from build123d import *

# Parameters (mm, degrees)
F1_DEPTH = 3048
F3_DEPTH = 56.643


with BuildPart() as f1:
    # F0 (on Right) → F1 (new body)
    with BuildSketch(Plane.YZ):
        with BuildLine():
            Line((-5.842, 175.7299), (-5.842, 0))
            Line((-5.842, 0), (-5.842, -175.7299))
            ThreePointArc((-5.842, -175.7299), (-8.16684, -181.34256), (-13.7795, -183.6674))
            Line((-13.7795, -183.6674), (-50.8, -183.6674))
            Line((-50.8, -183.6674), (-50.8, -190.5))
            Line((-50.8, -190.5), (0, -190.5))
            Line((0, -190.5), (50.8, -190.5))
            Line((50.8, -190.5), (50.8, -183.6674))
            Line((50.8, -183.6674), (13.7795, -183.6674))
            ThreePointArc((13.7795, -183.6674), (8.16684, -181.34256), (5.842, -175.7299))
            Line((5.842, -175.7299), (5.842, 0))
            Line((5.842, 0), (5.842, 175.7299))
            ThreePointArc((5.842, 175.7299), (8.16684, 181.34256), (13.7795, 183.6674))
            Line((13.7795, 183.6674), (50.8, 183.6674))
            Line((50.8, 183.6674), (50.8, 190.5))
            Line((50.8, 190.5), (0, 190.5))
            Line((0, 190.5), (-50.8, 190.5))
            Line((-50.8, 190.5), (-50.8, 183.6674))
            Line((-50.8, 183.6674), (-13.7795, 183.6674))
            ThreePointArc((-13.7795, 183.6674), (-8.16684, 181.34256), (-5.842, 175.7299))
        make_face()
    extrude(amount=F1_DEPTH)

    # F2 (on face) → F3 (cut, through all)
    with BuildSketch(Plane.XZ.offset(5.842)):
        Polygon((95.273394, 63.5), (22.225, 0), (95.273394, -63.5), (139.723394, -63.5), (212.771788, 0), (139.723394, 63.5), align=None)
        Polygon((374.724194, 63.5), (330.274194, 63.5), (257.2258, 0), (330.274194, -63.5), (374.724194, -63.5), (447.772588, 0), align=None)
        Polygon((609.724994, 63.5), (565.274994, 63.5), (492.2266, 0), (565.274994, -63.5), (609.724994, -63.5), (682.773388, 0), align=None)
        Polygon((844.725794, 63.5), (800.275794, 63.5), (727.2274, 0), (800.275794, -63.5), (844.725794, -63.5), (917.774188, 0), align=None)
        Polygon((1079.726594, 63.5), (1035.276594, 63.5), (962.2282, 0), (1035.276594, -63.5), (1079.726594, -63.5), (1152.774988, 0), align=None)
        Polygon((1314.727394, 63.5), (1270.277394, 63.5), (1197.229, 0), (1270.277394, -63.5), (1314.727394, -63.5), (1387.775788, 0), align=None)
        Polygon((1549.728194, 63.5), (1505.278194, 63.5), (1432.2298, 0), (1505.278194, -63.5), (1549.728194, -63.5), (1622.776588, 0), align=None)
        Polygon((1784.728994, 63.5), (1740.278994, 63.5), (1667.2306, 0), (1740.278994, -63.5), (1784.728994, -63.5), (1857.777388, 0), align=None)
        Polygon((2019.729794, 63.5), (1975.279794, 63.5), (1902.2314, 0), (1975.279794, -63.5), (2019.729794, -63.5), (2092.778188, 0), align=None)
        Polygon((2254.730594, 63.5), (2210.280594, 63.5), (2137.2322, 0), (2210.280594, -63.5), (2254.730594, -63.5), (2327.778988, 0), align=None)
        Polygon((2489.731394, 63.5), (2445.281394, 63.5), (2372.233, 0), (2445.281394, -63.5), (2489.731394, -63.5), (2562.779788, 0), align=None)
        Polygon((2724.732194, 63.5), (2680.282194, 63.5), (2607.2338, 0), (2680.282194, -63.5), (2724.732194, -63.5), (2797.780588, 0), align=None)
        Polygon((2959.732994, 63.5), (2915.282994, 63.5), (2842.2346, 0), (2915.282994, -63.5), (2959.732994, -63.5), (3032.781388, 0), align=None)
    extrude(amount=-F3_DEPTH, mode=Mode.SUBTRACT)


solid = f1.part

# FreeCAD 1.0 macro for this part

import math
import FreeCAD as App
import Part
import Sketcher
Q = App.Units.Quantity

doc = App.newDocument("Part")
body = doc.addObject("PartDesign::Body", "Body")

sketch1 = body.newObject("Sketcher::SketchObject", "Sketch")
sketch1.AttachmentSupport = (doc.getObject("YZ_Plane"), [""])
sketch1.MapMode = "FlatFace"
sketch1.addGeometry([
    Part.LineSegment(App.Vector(-5.842, 175.7299, 0), App.Vector(-5.842, -175.7299, 0)),
    Part.ArcOfCircle(Part.Circle(App.Vector(-13.7795, -175.7299, 0), App.Vector(0, 0, 1), 7.9375), math.radians(-89.999998), math.radians(-0.000002)),
    Part.LineSegment(App.Vector(-13.7795, -183.6674, 0), App.Vector(-50.8, -183.6674, 0)),
    Part.LineSegment(App.Vector(-50.8, -183.6674, 0), App.Vector(-50.8, -190.5, 0)),
    Part.LineSegment(App.Vector(-50.8, -190.5, 0), App.Vector(50.8, -190.5, 0)),
    Part.LineSegment(App.Vector(50.8, -190.5, 0), App.Vector(50.8, -183.6674, 0)),
    Part.LineSegment(App.Vector(50.8, -183.6674, 0), App.Vector(13.7795, -183.6674, 0)),
    Part.ArcOfCircle(Part.Circle(App.Vector(13.7795, -175.7299, 0), App.Vector(0, 0, 1), 7.9375), math.radians(-179.999998), math.radians(-90.000002)),
    Part.LineSegment(App.Vector(5.842, -175.7299, 0), App.Vector(5.842, 175.7299, 0)),
    Part.ArcOfCircle(Part.Circle(App.Vector(13.7795, 175.7299, 0), App.Vector(0, 0, 1), 7.9375), math.radians(90.000002), math.radians(179.999998)),
    Part.LineSegment(App.Vector(13.7795, 183.6674, 0), App.Vector(50.8, 183.6674, 0)),
    Part.LineSegment(App.Vector(50.8, 183.6674, 0), App.Vector(50.8, 190.5, 0)),
    Part.LineSegment(App.Vector(50.8, 190.5, 0), App.Vector(-50.8, 190.5, 0)),
    Part.LineSegment(App.Vector(-50.8, 190.5, 0), App.Vector(-50.8, 183.6674, 0)),
    Part.LineSegment(App.Vector(-50.8, 183.6674, 0), App.Vector(-13.7795, 183.6674, 0)),
    Part.ArcOfCircle(Part.Circle(App.Vector(-13.7795, 175.7299, 0), App.Vector(0, 0, 1), 7.9375), math.radians(0.000002), math.radians(89.999998)),
], False)
sketch1.addConstraint([
    Sketcher.Constraint("Tangent", 0, 2, 1, 2),
    Sketcher.Constraint("Tangent", 1, 1, 2, 1),
    Sketcher.Constraint("Coincident", 2, 2, 3, 1),
    Sketcher.Constraint("Coincident", 3, 2, 4, 1),
    Sketcher.Constraint("Coincident", 4, 2, 5, 1),
    Sketcher.Constraint("Coincident", 5, 2, 6, 1),
    Sketcher.Constraint("Tangent", 6, 2, 7, 2),
    Sketcher.Constraint("Tangent", 7, 1, 8, 1),
    Sketcher.Constraint("Tangent", 8, 2, 9, 2),
    Sketcher.Constraint("Tangent", 9, 1, 10, 1),
    Sketcher.Constraint("Coincident", 10, 2, 11, 1),
    Sketcher.Constraint("Coincident", 11, 2, 12, 1),
    Sketcher.Constraint("Coincident", 12, 2, 13, 1),
    Sketcher.Constraint("Coincident", 13, 2, 14, 1),
    Sketcher.Constraint("Tangent", 14, 2, 15, 2),
    Sketcher.Constraint("Tangent", 15, 1, 0, 1),
    Sketcher.Constraint("Vertical", 0),
    Sketcher.Constraint("Horizontal", 2),
    Sketcher.Constraint("Vertical", 3),
    Sketcher.Constraint("Horizontal", 4),
    Sketcher.Constraint("Vertical", 5),
    Sketcher.Constraint("Horizontal", 6),
    Sketcher.Constraint("Vertical", 8),
    Sketcher.Constraint("Horizontal", 10),
    Sketcher.Constraint("Vertical", 11),
    Sketcher.Constraint("Horizontal", 12),
    Sketcher.Constraint("Vertical", 13),
    Sketcher.Constraint("Horizontal", 14),
    Sketcher.Constraint("Equal", 1, 7),
    Sketcher.Constraint("Equal", 7, 9),
    Sketcher.Constraint("Equal", 9, 15),
    Sketcher.Constraint("Symmetric", 1, 3, 9, 3, -1, 1),
    Sketcher.Constraint("Symmetric", 3, 2, 11, 2, -1, 1),
    Sketcher.Constraint("Symmetric", 5, 2, 13, 2, -1, 1),
    Sketcher.Constraint("Symmetric", 2, 2, 5, 2, -2),
    Sketcher.Constraint("DistanceX", 4, 1, 4, 2, Q("4 in")),
    Sketcher.Constraint("Radius", 1, Q("0.3125 in")),
    Sketcher.Constraint("DistanceY", 3, 2, -1, 1, Q("7.5 in")),
    Sketcher.Constraint("DistanceY", 0, 2, 0, 1, Q("13.837 in")),
    Sketcher.Constraint("DistanceX", 0, 2, -1, 1, Q("0.23 in")),
])
pad1 = body.newObject("PartDesign::Pad", "Pad")
pad1.Profile = sketch1
pad1.Length = Q("120 in")

sketch2 = body.newObject("Sketcher::SketchObject", "Sketch001")
sketch2.AttachmentSupport = (doc.getObject("XZ_Plane"), [""])
sketch2.MapMode = "FlatFace"
sketch2.AttachmentOffset = App.Placement(App.Vector(0, 0, 0.23 * 25.4), App.Rotation())
sketch2.addGeometry([
    Part.LineSegment(App.Vector(95.273394, 63.5, 0), App.Vector(22.225, 0, 0)),
    Part.LineSegment(App.Vector(22.225, 0, 0), App.Vector(95.273394, -63.5, 0)),
    Part.LineSegment(App.Vector(95.273394, -63.5, 0), App.Vector(139.723394, -63.5, 0)),
    Part.LineSegment(App.Vector(139.723394, -63.5, 0), App.Vector(212.771788, 0, 0)),
    Part.LineSegment(App.Vector(212.771788, 0, 0), App.Vector(139.723394, 63.5, 0)),
    Part.LineSegment(App.Vector(139.723394, 63.5, 0), App.Vector(95.273394, 63.5, 0)),
    Part.LineSegment(App.Vector(374.724194, 63.5, 0), App.Vector(330.274194, 63.5, 0)),
    Part.LineSegment(App.Vector(330.274194, 63.5, 0), App.Vector(257.2258, 0, 0)),
    Part.LineSegment(App.Vector(257.2258, 0, 0), App.Vector(330.274194, -63.5, 0)),
    Part.LineSegment(App.Vector(330.274194, -63.5, 0), App.Vector(374.724194, -63.5, 0)),
    Part.LineSegment(App.Vector(374.724194, -63.5, 0), App.Vector(447.772588, 0, 0)),
    Part.LineSegment(App.Vector(447.772588, 0, 0), App.Vector(374.724194, 63.5, 0)),
    Part.LineSegment(App.Vector(609.724994, 63.5, 0), App.Vector(565.274994, 63.5, 0)),
    Part.LineSegment(App.Vector(565.274994, 63.5, 0), App.Vector(492.2266, 0, 0)),
    Part.LineSegment(App.Vector(492.2266, 0, 0), App.Vector(565.274994, -63.5, 0)),
    Part.LineSegment(App.Vector(565.274994, -63.5, 0), App.Vector(609.724994, -63.5, 0)),
    Part.LineSegment(App.Vector(609.724994, -63.5, 0), App.Vector(682.773388, 0, 0)),
    Part.LineSegment(App.Vector(682.773388, 0, 0), App.Vector(609.724994, 63.5, 0)),
    Part.LineSegment(App.Vector(844.725794, 63.5, 0), App.Vector(800.275794, 63.5, 0)),
    Part.LineSegment(App.Vector(800.275794, 63.5, 0), App.Vector(727.2274, 0, 0)),
    Part.LineSegment(App.Vector(727.2274, 0, 0), App.Vector(800.275794, -63.5, 0)),
    Part.LineSegment(App.Vector(800.275794, -63.5, 0), App.Vector(844.725794, -63.5, 0)),
    Part.LineSegment(App.Vector(844.725794, -63.5, 0), App.Vector(917.774188, 0, 0)),
    Part.LineSegment(App.Vector(917.774188, 0, 0), App.Vector(844.725794, 63.5, 0)),
    Part.LineSegment(App.Vector(1079.726594, 63.5, 0), App.Vector(1035.276594, 63.5, 0)),
    Part.LineSegment(App.Vector(1035.276594, 63.5, 0), App.Vector(962.2282, 0, 0)),
    Part.LineSegment(App.Vector(962.2282, 0, 0), App.Vector(1035.276594, -63.5, 0)),
    Part.LineSegment(App.Vector(1035.276594, -63.5, 0), App.Vector(1079.726594, -63.5, 0)),
    Part.LineSegment(App.Vector(1079.726594, -63.5, 0), App.Vector(1152.774988, 0, 0)),
    Part.LineSegment(App.Vector(1152.774988, 0, 0), App.Vector(1079.726594, 63.5, 0)),
    Part.LineSegment(App.Vector(1314.727394, 63.5, 0), App.Vector(1270.277394, 63.5, 0)),
    Part.LineSegment(App.Vector(1270.277394, 63.5, 0), App.Vector(1197.229, 0, 0)),
    Part.LineSegment(App.Vector(1197.229, 0, 0), App.Vector(1270.277394, -63.5, 0)),
    Part.LineSegment(App.Vector(1270.277394, -63.5, 0), App.Vector(1314.727394, -63.5, 0)),
    Part.LineSegment(App.Vector(1314.727394, -63.5, 0), App.Vector(1387.775788, 0, 0)),
    Part.LineSegment(App.Vector(1387.775788, 0, 0), App.Vector(1314.727394, 63.5, 0)),
    Part.LineSegment(App.Vector(1549.728194, 63.5, 0), App.Vector(1505.278194, 63.5, 0)),
    Part.LineSegment(App.Vector(1505.278194, 63.5, 0), App.Vector(1432.2298, 0, 0)),
    Part.LineSegment(App.Vector(1432.2298, 0, 0), App.Vector(1505.278194, -63.5, 0)),
    Part.LineSegment(App.Vector(1505.278194, -63.5, 0), App.Vector(1549.728194, -63.5, 0)),
    Part.LineSegment(App.Vector(1549.728194, -63.5, 0), App.Vector(1622.776588, 0, 0)),
    Part.LineSegment(App.Vector(1622.776588, 0, 0), App.Vector(1549.728194, 63.5, 0)),
    Part.LineSegment(App.Vector(1784.728994, 63.5, 0), App.Vector(1740.278994, 63.5, 0)),
    Part.LineSegment(App.Vector(1740.278994, 63.5, 0), App.Vector(1667.2306, 0, 0)),
    Part.LineSegment(App.Vector(1667.2306, 0, 0), App.Vector(1740.278994, -63.5, 0)),
    Part.LineSegment(App.Vector(1740.278994, -63.5, 0), App.Vector(1784.728994, -63.5, 0)),
    Part.LineSegment(App.Vector(1784.728994, -63.5, 0), App.Vector(1857.777388, 0, 0)),
    Part.LineSegment(App.Vector(1857.777388, 0, 0), App.Vector(1784.728994, 63.5, 0)),
    Part.LineSegment(App.Vector(2019.729794, 63.5, 0), App.Vector(1975.279794, 63.5, 0)),
    Part.LineSegment(App.Vector(1975.279794, 63.5, 0), App.Vector(1902.2314, 0, 0)),
    Part.LineSegment(App.Vector(1902.2314, 0, 0), App.Vector(1975.279794, -63.5, 0)),
    Part.LineSegment(App.Vector(1975.279794, -63.5, 0), App.Vector(2019.729794, -63.5, 0)),
    Part.LineSegment(App.Vector(2019.729794, -63.5, 0), App.Vector(2092.778188, 0, 0)),
    Part.LineSegment(App.Vector(2092.778188, 0, 0), App.Vector(2019.729794, 63.5, 0)),
    Part.LineSegment(App.Vector(2254.730594, 63.5, 0), App.Vector(2210.280594, 63.5, 0)),
    Part.LineSegment(App.Vector(2210.280594, 63.5, 0), App.Vector(2137.2322, 0, 0)),
    Part.LineSegment(App.Vector(2137.2322, 0, 0), App.Vector(2210.280594, -63.5, 0)),
    Part.LineSegment(App.Vector(2210.280594, -63.5, 0), App.Vector(2254.730594, -63.5, 0)),
    Part.LineSegment(App.Vector(2254.730594, -63.5, 0), App.Vector(2327.778988, 0, 0)),
    Part.LineSegment(App.Vector(2327.778988, 0, 0), App.Vector(2254.730594, 63.5, 0)),
    Part.LineSegment(App.Vector(2489.731394, 63.5, 0), App.Vector(2445.281394, 63.5, 0)),
    Part.LineSegment(App.Vector(2445.281394, 63.5, 0), App.Vector(2372.233, 0, 0)),
    Part.LineSegment(App.Vector(2372.233, 0, 0), App.Vector(2445.281394, -63.5, 0)),
    Part.LineSegment(App.Vector(2445.281394, -63.5, 0), App.Vector(2489.731394, -63.5, 0)),
    Part.LineSegment(App.Vector(2489.731394, -63.5, 0), App.Vector(2562.779788, 0, 0)),
    Part.LineSegment(App.Vector(2562.779788, 0, 0), App.Vector(2489.731394, 63.5, 0)),
    Part.LineSegment(App.Vector(2724.732194, 63.5, 0), App.Vector(2680.282194, 63.5, 0)),
    Part.LineSegment(App.Vector(2680.282194, 63.5, 0), App.Vector(2607.2338, 0, 0)),
    Part.LineSegment(App.Vector(2607.2338, 0, 0), App.Vector(2680.282194, -63.5, 0)),
    Part.LineSegment(App.Vector(2680.282194, -63.5, 0), App.Vector(2724.732194, -63.5, 0)),
    Part.LineSegment(App.Vector(2724.732194, -63.5, 0), App.Vector(2797.780588, 0, 0)),
    Part.LineSegment(App.Vector(2797.780588, 0, 0), App.Vector(2724.732194, 63.5, 0)),
    Part.LineSegment(App.Vector(2959.732994, 63.5, 0), App.Vector(2915.282994, 63.5, 0)),
    Part.LineSegment(App.Vector(2915.282994, 63.5, 0), App.Vector(2842.2346, 0, 0)),
    Part.LineSegment(App.Vector(2842.2346, 0, 0), App.Vector(2915.282994, -63.5, 0)),
    Part.LineSegment(App.Vector(2915.282994, -63.5, 0), App.Vector(2959.732994, -63.5, 0)),
    Part.LineSegment(App.Vector(2959.732994, -63.5, 0), App.Vector(3032.781388, 0, 0)),
    Part.LineSegment(App.Vector(3032.781388, 0, 0), App.Vector(2959.732994, 63.5, 0)),
], False)
sketch2.addConstraint([
    Sketcher.Constraint("Coincident", 0, 2, 1, 1),
    Sketcher.Constraint("Coincident", 1, 2, 2, 1),
    Sketcher.Constraint("Coincident", 2, 2, 3, 1),
    Sketcher.Constraint("Coincident", 3, 2, 4, 1),
    Sketcher.Constraint("Coincident", 4, 2, 5, 1),
    Sketcher.Constraint("Coincident", 5, 2, 0, 1),
    Sketcher.Constraint("Coincident", 6, 2, 7, 1),
    Sketcher.Constraint("Coincident", 7, 2, 8, 1),
    Sketcher.Constraint("Coincident", 8, 2, 9, 1),
    Sketcher.Constraint("Coincident", 9, 2, 10, 1),
    Sketcher.Constraint("Coincident", 10, 2, 11, 1),
    Sketcher.Constraint("Coincident", 11, 2, 6, 1),
    Sketcher.Constraint("Coincident", 12, 2, 13, 1),
    Sketcher.Constraint("Coincident", 13, 2, 14, 1),
    Sketcher.Constraint("Coincident", 14, 2, 15, 1),
    Sketcher.Constraint("Coincident", 15, 2, 16, 1),
    Sketcher.Constraint("Coincident", 16, 2, 17, 1),
    Sketcher.Constraint("Coincident", 17, 2, 12, 1),
    Sketcher.Constraint("Coincident", 18, 2, 19, 1),
    Sketcher.Constraint("Coincident", 19, 2, 20, 1),
    Sketcher.Constraint("Coincident", 20, 2, 21, 1),
    Sketcher.Constraint("Coincident", 21, 2, 22, 1),
    Sketcher.Constraint("Coincident", 22, 2, 23, 1),
    Sketcher.Constraint("Coincident", 23, 2, 18, 1),
    Sketcher.Constraint("Coincident", 24, 2, 25, 1),
    Sketcher.Constraint("Coincident", 25, 2, 26, 1),
    Sketcher.Constraint("Coincident", 26, 2, 27, 1),
    Sketcher.Constraint("Coincident", 27, 2, 28, 1),
    Sketcher.Constraint("Coincident", 28, 2, 29, 1),
    Sketcher.Constraint("Coincident", 29, 2, 24, 1),
    Sketcher.Constraint("Coincident", 30, 2, 31, 1),
    Sketcher.Constraint("Coincident", 31, 2, 32, 1),
    Sketcher.Constraint("Coincident", 32, 2, 33, 1),
    Sketcher.Constraint("Coincident", 33, 2, 34, 1),
    Sketcher.Constraint("Coincident", 34, 2, 35, 1),
    Sketcher.Constraint("Coincident", 35, 2, 30, 1),
    Sketcher.Constraint("Coincident", 36, 2, 37, 1),
    Sketcher.Constraint("Coincident", 37, 2, 38, 1),
    Sketcher.Constraint("Coincident", 38, 2, 39, 1),
    Sketcher.Constraint("Coincident", 39, 2, 40, 1),
    Sketcher.Constraint("Coincident", 40, 2, 41, 1),
    Sketcher.Constraint("Coincident", 41, 2, 36, 1),
    Sketcher.Constraint("Coincident", 42, 2, 43, 1),
    Sketcher.Constraint("Coincident", 43, 2, 44, 1),
    Sketcher.Constraint("Coincident", 44, 2, 45, 1),
    Sketcher.Constraint("Coincident", 45, 2, 46, 1),
    Sketcher.Constraint("Coincident", 46, 2, 47, 1),
    Sketcher.Constraint("Coincident", 47, 2, 42, 1),
    Sketcher.Constraint("Coincident", 48, 2, 49, 1),
    Sketcher.Constraint("Coincident", 49, 2, 50, 1),
    Sketcher.Constraint("Coincident", 50, 2, 51, 1),
    Sketcher.Constraint("Coincident", 51, 2, 52, 1),
    Sketcher.Constraint("Coincident", 52, 2, 53, 1),
    Sketcher.Constraint("Coincident", 53, 2, 48, 1),
    Sketcher.Constraint("Coincident", 54, 2, 55, 1),
    Sketcher.Constraint("Coincident", 55, 2, 56, 1),
    Sketcher.Constraint("Coincident", 56, 2, 57, 1),
    Sketcher.Constraint("Coincident", 57, 2, 58, 1),
    Sketcher.Constraint("Coincident", 58, 2, 59, 1),
    Sketcher.Constraint("Coincident", 59, 2, 54, 1),
    Sketcher.Constraint("Coincident", 60, 2, 61, 1),
    Sketcher.Constraint("Coincident", 61, 2, 62, 1),
    Sketcher.Constraint("Coincident", 62, 2, 63, 1),
    Sketcher.Constraint("Coincident", 63, 2, 64, 1),
    Sketcher.Constraint("Coincident", 64, 2, 65, 1),
    Sketcher.Constraint("Coincident", 65, 2, 60, 1),
    Sketcher.Constraint("Coincident", 66, 2, 67, 1),
    Sketcher.Constraint("Coincident", 67, 2, 68, 1),
    Sketcher.Constraint("Coincident", 68, 2, 69, 1),
    Sketcher.Constraint("Coincident", 69, 2, 70, 1),
    Sketcher.Constraint("Coincident", 70, 2, 71, 1),
    Sketcher.Constraint("Coincident", 71, 2, 66, 1),
    Sketcher.Constraint("Coincident", 72, 2, 73, 1),
    Sketcher.Constraint("Coincident", 73, 2, 74, 1),
    Sketcher.Constraint("Coincident", 74, 2, 75, 1),
    Sketcher.Constraint("Coincident", 75, 2, 76, 1),
    Sketcher.Constraint("Coincident", 76, 2, 77, 1),
    Sketcher.Constraint("Coincident", 77, 2, 72, 1),
    Sketcher.Constraint("Horizontal", 2),
    Sketcher.Constraint("Horizontal", 5),
    Sketcher.Constraint("Horizontal", 6),
    Sketcher.Constraint("Horizontal", 9),
    Sketcher.Constraint("Horizontal", 12),
    Sketcher.Constraint("Horizontal", 15),
    Sketcher.Constraint("Horizontal", 18),
    Sketcher.Constraint("Horizontal", 21),
    Sketcher.Constraint("Horizontal", 24),
    Sketcher.Constraint("Horizontal", 27),
    Sketcher.Constraint("Horizontal", 30),
    Sketcher.Constraint("Horizontal", 33),
    Sketcher.Constraint("Horizontal", 36),
    Sketcher.Constraint("Horizontal", 39),
    Sketcher.Constraint("Horizontal", 42),
    Sketcher.Constraint("Horizontal", 45),
    Sketcher.Constraint("Horizontal", 48),
    Sketcher.Constraint("Horizontal", 51),
    Sketcher.Constraint("Horizontal", 54),
    Sketcher.Constraint("Horizontal", 57),
    Sketcher.Constraint("Horizontal", 60),
    Sketcher.Constraint("Horizontal", 63),
    Sketcher.Constraint("Horizontal", 66),
    Sketcher.Constraint("Horizontal", 69),
    Sketcher.Constraint("Horizontal", 72),
    Sketcher.Constraint("Horizontal", 75),
    Sketcher.Constraint("Symmetric", 2, 2, 4, 2, -1),
    Sketcher.Constraint("Symmetric", 6, 2, 8, 2, -1),
    Sketcher.Constraint("Symmetric", 12, 2, 14, 2, -1),
    Sketcher.Constraint("Symmetric", 18, 2, 20, 2, -1),
    Sketcher.Constraint("Symmetric", 24, 2, 26, 2, -1),
    Sketcher.Constraint("Symmetric", 30, 2, 32, 2, -1),
    Sketcher.Constraint("Symmetric", 36, 2, 38, 2, -1),
    Sketcher.Constraint("Symmetric", 42, 2, 44, 2, -1),
    Sketcher.Constraint("Symmetric", 48, 2, 50, 2, -1),
    Sketcher.Constraint("Symmetric", 54, 2, 56, 2, -1),
    Sketcher.Constraint("Symmetric", 60, 2, 62, 2, -1),
    Sketcher.Constraint("Symmetric", 66, 2, 68, 2, -1),
    Sketcher.Constraint("Symmetric", 72, 2, 74, 2, -1),
    Sketcher.Constraint("PointOnObject", 0, 2, -1),
    Sketcher.Constraint("PointOnObject", 3, 2, -1),
    Sketcher.Constraint("PointOnObject", 7, 2, -1),
    Sketcher.Constraint("PointOnObject", 10, 2, -1),
    Sketcher.Constraint("PointOnObject", 13, 2, -1),
    Sketcher.Constraint("PointOnObject", 16, 2, -1),
    Sketcher.Constraint("PointOnObject", 19, 2, -1),
    Sketcher.Constraint("PointOnObject", 22, 2, -1),
    Sketcher.Constraint("PointOnObject", 25, 2, -1),
    Sketcher.Constraint("PointOnObject", 28, 2, -1),
    Sketcher.Constraint("PointOnObject", 31, 2, -1),
    Sketcher.Constraint("PointOnObject", 34, 2, -1),
    Sketcher.Constraint("PointOnObject", 37, 2, -1),
    Sketcher.Constraint("PointOnObject", 40, 2, -1),
    Sketcher.Constraint("PointOnObject", 43, 2, -1),
    Sketcher.Constraint("PointOnObject", 46, 2, -1),
    Sketcher.Constraint("PointOnObject", 49, 2, -1),
    Sketcher.Constraint("PointOnObject", 52, 2, -1),
    Sketcher.Constraint("PointOnObject", 55, 2, -1),
    Sketcher.Constraint("PointOnObject", 58, 2, -1),
    Sketcher.Constraint("PointOnObject", 61, 2, -1),
    Sketcher.Constraint("PointOnObject", 64, 2, -1),
    Sketcher.Constraint("PointOnObject", 67, 2, -1),
    Sketcher.Constraint("PointOnObject", 70, 2, -1),
    Sketcher.Constraint("PointOnObject", 73, 2, -1),
    Sketcher.Constraint("PointOnObject", 76, 2, -1),
    Sketcher.Constraint("Parallel", 0, 3),
    Sketcher.Constraint("Parallel", 1, 4),
    Sketcher.Constraint("Parallel", 3, 7),
    Sketcher.Constraint("Parallel", 7, 10),
    Sketcher.Constraint("Parallel", 8, 11),
    Sketcher.Constraint("Parallel", 10, 13),
    Sketcher.Constraint("Parallel", 13, 16),
    Sketcher.Constraint("Parallel", 14, 17),
    Sketcher.Constraint("Parallel", 16, 19),
    Sketcher.Constraint("Parallel", 19, 22),
    Sketcher.Constraint("Parallel", 20, 23),
    Sketcher.Constraint("Parallel", 22, 25),
    Sketcher.Constraint("Parallel", 25, 28),
    Sketcher.Constraint("Parallel", 26, 29),
    Sketcher.Constraint("Parallel", 28, 31),
    Sketcher.Constraint("Parallel", 31, 34),
    Sketcher.Constraint("Parallel", 32, 35),
    Sketcher.Constraint("Parallel", 34, 37),
    Sketcher.Constraint("Parallel", 37, 40),
    Sketcher.Constraint("Parallel", 38, 41),
    Sketcher.Constraint("Parallel", 40, 43),
    Sketcher.Constraint("Parallel", 43, 46),
    Sketcher.Constraint("Parallel", 44, 47),
    Sketcher.Constraint("Parallel", 46, 49),
    Sketcher.Constraint("Parallel", 49, 52),
    Sketcher.Constraint("Parallel", 50, 53),
    Sketcher.Constraint("Parallel", 52, 55),
    Sketcher.Constraint("Parallel", 55, 58),
    Sketcher.Constraint("Parallel", 56, 59),
    Sketcher.Constraint("Parallel", 58, 61),
    Sketcher.Constraint("Parallel", 61, 64),
    Sketcher.Constraint("Parallel", 62, 65),
    Sketcher.Constraint("Parallel", 64, 67),
    Sketcher.Constraint("Parallel", 67, 70),
    Sketcher.Constraint("Parallel", 68, 71),
    Sketcher.Constraint("Parallel", 70, 73),
    Sketcher.Constraint("Parallel", 73, 76),
    Sketcher.Constraint("Parallel", 74, 77),
    Sketcher.Constraint("Horizontal", 5, 2, 6, 2),
    Sketcher.Constraint("Horizontal", 11, 2, 12, 2),
    Sketcher.Constraint("Horizontal", 17, 2, 18, 2),
    Sketcher.Constraint("Horizontal", 23, 2, 24, 2),
    Sketcher.Constraint("Horizontal", 29, 2, 30, 2),
    Sketcher.Constraint("Horizontal", 35, 2, 36, 2),
    Sketcher.Constraint("Horizontal", 41, 2, 42, 2),
    Sketcher.Constraint("Horizontal", 47, 2, 48, 2),
    Sketcher.Constraint("Horizontal", 53, 2, 54, 2),
    Sketcher.Constraint("Horizontal", 59, 2, 60, 2),
    Sketcher.Constraint("Horizontal", 65, 2, 66, 2),
    Sketcher.Constraint("Horizontal", 71, 2, 72, 2),
    Sketcher.Constraint("Equal", 5, 6),
    Sketcher.Constraint("Equal", 9, 12),
    Sketcher.Constraint("Equal", 15, 18),
    Sketcher.Constraint("Equal", 21, 24),
    Sketcher.Constraint("Equal", 27, 30),
    Sketcher.Constraint("Equal", 33, 36),
    Sketcher.Constraint("Equal", 39, 42),
    Sketcher.Constraint("Equal", 45, 48),
    Sketcher.Constraint("Equal", 51, 54),
    Sketcher.Constraint("Equal", 57, 60),
    Sketcher.Constraint("Equal", 63, 66),
    Sketcher.Constraint("Equal", 69, 72),
    Sketcher.Constraint("Angle", 0, Q("-139 deg")),
    Sketcher.Constraint("DistanceX", 2, 1, 2, 2, Q("1.75 in")),
    Sketcher.Constraint("DistanceY", 1, 2, -1, 1, Q("2.5 in")),
    Sketcher.Constraint("DistanceX", -1, 1, 0, 2, Q("0.875 in")),
    Sketcher.Constraint("DistanceX", -1, 1, 7, 2, Q("10.127 in")),
    Sketcher.Constraint("DistanceX", -1, 1, 13, 2, Q("19.379 in")),
    Sketcher.Constraint("DistanceX", -1, 1, 19, 2, Q("28.631 in")),
    Sketcher.Constraint("DistanceX", -1, 1, 25, 2, Q("37.883 in")),
    Sketcher.Constraint("DistanceX", -1, 1, 31, 2, Q("47.135 in")),
    Sketcher.Constraint("DistanceX", -1, 1, 37, 2, Q("56.387 in")),
    Sketcher.Constraint("DistanceX", -1, 1, 43, 2, Q("65.639 in")),
    Sketcher.Constraint("DistanceX", -1, 1, 49, 2, Q("74.891 in")),
    Sketcher.Constraint("DistanceX", -1, 1, 55, 2, Q("84.143 in")),
    Sketcher.Constraint("DistanceX", -1, 1, 61, 2, Q("93.395 in")),
    Sketcher.Constraint("DistanceX", -1, 1, 67, 2, Q("102.647 in")),
    Sketcher.Constraint("DistanceX", -1, 1, 73, 2, Q("111.899 in")),
])
pocket1 = body.newObject("PartDesign::Pocket", "Pocket")
pocket1.Profile = sketch2
pocket1.Type = "ThroughAll"

doc.recompute()
